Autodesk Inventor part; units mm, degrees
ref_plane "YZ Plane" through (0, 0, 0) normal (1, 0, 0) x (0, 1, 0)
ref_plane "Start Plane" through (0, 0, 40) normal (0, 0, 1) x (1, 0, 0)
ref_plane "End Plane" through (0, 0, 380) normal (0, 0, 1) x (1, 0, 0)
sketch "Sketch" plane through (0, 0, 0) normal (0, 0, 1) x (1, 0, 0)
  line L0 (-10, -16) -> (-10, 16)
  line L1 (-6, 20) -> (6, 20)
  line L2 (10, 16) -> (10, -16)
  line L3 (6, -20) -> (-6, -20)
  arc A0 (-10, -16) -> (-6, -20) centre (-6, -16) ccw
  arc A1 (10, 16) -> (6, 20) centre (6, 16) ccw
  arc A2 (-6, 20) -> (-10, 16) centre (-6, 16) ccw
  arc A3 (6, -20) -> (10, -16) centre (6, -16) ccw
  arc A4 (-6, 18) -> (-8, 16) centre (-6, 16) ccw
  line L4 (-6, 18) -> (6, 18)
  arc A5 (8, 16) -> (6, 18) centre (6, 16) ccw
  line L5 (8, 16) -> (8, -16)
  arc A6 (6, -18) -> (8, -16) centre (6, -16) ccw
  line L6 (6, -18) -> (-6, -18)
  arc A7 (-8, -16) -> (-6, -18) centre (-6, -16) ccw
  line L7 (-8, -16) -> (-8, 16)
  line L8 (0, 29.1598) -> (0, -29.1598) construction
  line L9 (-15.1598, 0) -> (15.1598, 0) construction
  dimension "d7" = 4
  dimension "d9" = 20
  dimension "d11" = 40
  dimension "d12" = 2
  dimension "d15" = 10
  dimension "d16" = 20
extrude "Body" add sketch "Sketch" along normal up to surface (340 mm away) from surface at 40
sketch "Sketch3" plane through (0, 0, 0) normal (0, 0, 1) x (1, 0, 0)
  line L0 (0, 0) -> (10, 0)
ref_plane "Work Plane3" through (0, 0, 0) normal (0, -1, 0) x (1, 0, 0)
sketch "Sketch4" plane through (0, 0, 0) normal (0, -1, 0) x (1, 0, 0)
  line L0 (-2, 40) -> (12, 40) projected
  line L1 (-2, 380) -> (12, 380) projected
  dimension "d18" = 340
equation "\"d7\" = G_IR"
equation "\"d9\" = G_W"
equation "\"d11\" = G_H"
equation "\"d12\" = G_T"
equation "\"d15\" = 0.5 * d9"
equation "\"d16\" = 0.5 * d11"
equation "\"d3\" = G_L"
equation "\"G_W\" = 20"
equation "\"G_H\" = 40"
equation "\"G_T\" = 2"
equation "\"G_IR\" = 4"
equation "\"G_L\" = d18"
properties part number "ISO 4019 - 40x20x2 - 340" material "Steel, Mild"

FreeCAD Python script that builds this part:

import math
import FreeCAD as App
import Part
import Sketcher
Q = App.Units.Quantity

doc = App.newDocument("Part")
body = doc.addObject("PartDesign::Body", "Body")

sketch1 = body.newObject("Sketcher::SketchObject", "Sketch")
sketch1.AttachmentSupport = (doc.getObject("XY_Plane"), [""])
sketch1.MapMode = "FlatFace"
sketch1.AttachmentOffset = App.Placement(App.Vector(0, 0, 40), App.Rotation())
sketch1.addGeometry(Part.LineSegment(App.Vector(-10, 16, 0), App.Vector(-10, -16, 0)), False)
sketch1.addGeometry(Part.ArcOfCircle(Part.Circle(App.Vector(-6, -16, 0), App.Vector(0, 0, 1), 4), math.radians(180), math.radians(270)), False)
sketch1.addGeometry(Part.LineSegment(App.Vector(-6, -20, 0), App.Vector(6, -20, 0)), False)
sketch1.addGeometry(Part.ArcOfCircle(Part.Circle(App.Vector(6, -16, 0), App.Vector(0, 0, 1), 4), math.radians(-90), math.radians(0)), False)
sketch1.addGeometry(Part.LineSegment(App.Vector(10, -16, 0), App.Vector(10, 16, 0)), False)
sketch1.addGeometry(Part.ArcOfCircle(Part.Circle(App.Vector(6, 16, 0), App.Vector(0, 0, 1), 4), math.radians(0), math.radians(90)), False)
sketch1.addGeometry(Part.LineSegment(App.Vector(6, 20, 0), App.Vector(-6, 20, 0)), False)
sketch1.addGeometry(Part.ArcOfCircle(Part.Circle(App.Vector(-6, 16, 0), App.Vector(0, 0, 1), 4), math.radians(90), math.radians(180)), False)
sketch1.addGeometry(Part.ArcOfCircle(Part.Circle(App.Vector(-6, 16, 0), App.Vector(0, 0, 1), 2), math.radians(90), math.radians(180)), False)
sketch1.addGeometry(Part.LineSegment(App.Vector(-6, 18, 0), App.Vector(6, 18, 0)), False)
sketch1.addGeometry(Part.ArcOfCircle(Part.Circle(App.Vector(6, 16, 0), App.Vector(0, 0, 1), 2), math.radians(0), math.radians(90)), False)
sketch1.addGeometry(Part.LineSegment(App.Vector(8, 16, 0), App.Vector(8, -16, 0)), False)
sketch1.addGeometry(Part.ArcOfCircle(Part.Circle(App.Vector(6, -16, 0), App.Vector(0, 0, 1), 2), math.radians(-90), math.radians(0)), False)
sketch1.addGeometry(Part.LineSegment(App.Vector(6, -18, 0), App.Vector(-6, -18, 0)), False)
sketch1.addGeometry(Part.ArcOfCircle(Part.Circle(App.Vector(-6, -16, 0), App.Vector(0, 0, 1), 2), math.radians(180), math.radians(270)), False)
sketch1.addGeometry(Part.LineSegment(App.Vector(-8, -16, 0), App.Vector(-8, 16, 0)), False)
sketch1.addConstraint(Sketcher.Constraint("Tangent", 0, 2, 1, 1))
sketch1.addConstraint(Sketcher.Constraint("Tangent", 1, 2, 2, 1))
sketch1.addConstraint(Sketcher.Constraint("Tangent", 2, 2, 3, 1))
sketch1.addConstraint(Sketcher.Constraint("Tangent", 3, 2, 4, 1))
sketch1.addConstraint(Sketcher.Constraint("Tangent", 4, 2, 5, 1))
sketch1.addConstraint(Sketcher.Constraint("Tangent", 5, 2, 6, 1))
sketch1.addConstraint(Sketcher.Constraint("Tangent", 6, 2, 7, 1))
sketch1.addConstraint(Sketcher.Constraint("Tangent", 7, 2, 0, 1))
sketch1.addConstraint(Sketcher.Constraint("Tangent", 8, 1, 9, 1))
sketch1.addConstraint(Sketcher.Constraint("Tangent", 9, 2, 10, 2))
sketch1.addConstraint(Sketcher.Constraint("Tangent", 10, 1, 11, 1))
sketch1.addConstraint(Sketcher.Constraint("Tangent", 11, 2, 12, 2))
sketch1.addConstraint(Sketcher.Constraint("Tangent", 12, 1, 13, 1))
sketch1.addConstraint(Sketcher.Constraint("Tangent", 13, 2, 14, 2))
sketch1.addConstraint(Sketcher.Constraint("Tangent", 14, 1, 15, 1))
sketch1.addConstraint(Sketcher.Constraint("Tangent", 15, 2, 8, 2))
sketch1.addConstraint(Sketcher.Constraint("Vertical", 0))
sketch1.addConstraint(Sketcher.Constraint("Horizontal", 2))
sketch1.addConstraint(Sketcher.Constraint("Vertical", 4))
sketch1.addConstraint(Sketcher.Constraint("Horizontal", 6))
sketch1.addConstraint(Sketcher.Constraint("Horizontal", 9))
sketch1.addConstraint(Sketcher.Constraint("Vertical", 11))
sketch1.addConstraint(Sketcher.Constraint("Horizontal", 13))
sketch1.addConstraint(Sketcher.Constraint("Vertical", 15))
sketch1.addConstraint(Sketcher.Constraint("Coincident", 8, 3, 7, 3))
sketch1.addConstraint(Sketcher.Constraint("Coincident", 10, 3, 5, 3))
sketch1.addConstraint(Sketcher.Constraint("Coincident", 12, 3, 3, 3))
sketch1.addConstraint(Sketcher.Constraint("Equal", 1, 3))
sketch1.addConstraint(Sketcher.Constraint("Equal", 3, 5))
sketch1.addConstraint(Sketcher.Constraint("Equal", 5, 7))
sketch1.addConstraint(Sketcher.Constraint("Equal", 12, 14))
sketch1.addConstraint(Sketcher.Constraint("Symmetric", 1, 3, 5, 3, -1, 1))
sketch1.addConstraint(Sketcher.Constraint("Radius", 1, Q("4 mm")))
sketch1.addConstraint(Sketcher.Constraint("Radius", 8, Q("2 mm")))
sketch1.addConstraint(Sketcher.Constraint("DistanceX", 0, 2, -1, 1, Q("10 mm")))
sketch1.addConstraint(Sketcher.Constraint("DistanceY", 1, 2, -1, 1, Q("20 mm")))
pad1 = body.newObject("PartDesign::Pad", "Pad")
pad1.Profile = sketch1
pad1.Length = 340

doc.recompute()
